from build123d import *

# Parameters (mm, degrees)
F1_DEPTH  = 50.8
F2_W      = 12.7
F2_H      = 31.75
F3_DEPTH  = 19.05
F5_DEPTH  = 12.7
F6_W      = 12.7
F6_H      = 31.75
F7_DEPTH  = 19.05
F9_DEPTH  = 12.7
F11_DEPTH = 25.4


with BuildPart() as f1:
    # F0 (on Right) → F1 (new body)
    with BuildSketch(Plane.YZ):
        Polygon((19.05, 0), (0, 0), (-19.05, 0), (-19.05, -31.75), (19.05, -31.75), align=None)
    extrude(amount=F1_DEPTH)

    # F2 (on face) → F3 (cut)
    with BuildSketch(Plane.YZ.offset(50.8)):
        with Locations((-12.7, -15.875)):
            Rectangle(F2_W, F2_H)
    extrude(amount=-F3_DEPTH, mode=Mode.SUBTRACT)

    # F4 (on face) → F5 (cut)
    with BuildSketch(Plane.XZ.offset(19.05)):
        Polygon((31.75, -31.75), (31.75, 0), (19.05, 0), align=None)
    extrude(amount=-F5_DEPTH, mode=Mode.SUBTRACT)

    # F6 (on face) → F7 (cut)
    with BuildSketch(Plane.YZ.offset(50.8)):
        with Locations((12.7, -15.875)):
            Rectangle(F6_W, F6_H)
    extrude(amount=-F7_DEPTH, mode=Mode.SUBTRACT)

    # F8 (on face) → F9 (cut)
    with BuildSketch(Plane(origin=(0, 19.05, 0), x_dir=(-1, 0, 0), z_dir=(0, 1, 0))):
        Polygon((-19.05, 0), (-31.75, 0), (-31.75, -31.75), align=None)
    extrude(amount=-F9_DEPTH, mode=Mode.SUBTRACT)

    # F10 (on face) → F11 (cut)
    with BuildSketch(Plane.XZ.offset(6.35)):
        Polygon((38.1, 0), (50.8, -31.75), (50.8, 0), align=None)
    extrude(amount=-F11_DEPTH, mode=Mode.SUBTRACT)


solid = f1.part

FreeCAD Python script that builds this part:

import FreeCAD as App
import Part
import Sketcher

V = App.Vector
Q = App.Units.Quantity


def add_polygon(sketch, points):
    """Adds a closed chain of lines whose ends are joined by coincident constraints."""
    first, n = sketch.GeometryCount, len(points)
    for a, b in zip(points, points[1:] + points[:1]):
        sketch.addGeometry(Part.LineSegment(App.Vector(*a, 0), App.Vector(*b, 0)), False)
    for i in range(n):
        sketch.addConstraint(Sketcher.Constraint("Coincident", first + i, 2, first + (i + 1) % n, 1))

doc = App.newDocument("Part")
body = doc.addObject("PartDesign::Body", "Body")

# Sketch on YZ plane
sketch1 = body.newObject("Sketcher::SketchObject", "Sketch")
sketch1.AttachmentSupport = (doc.getObject("YZ_Plane"), [""])
sketch1.MapMode = "FlatFace"
add_polygon(sketch1, [(19, 0), (-19, 0), (-19, -32), (19, -32)])  # lines 0-3
sketch1.addConstraint([
    Sketcher.Constraint("Horizontal", 0),
    Sketcher.Constraint("Vertical", 1),
    Sketcher.Constraint("Horizontal", 2),
    Sketcher.Constraint("Vertical", 3),
    Sketcher.Constraint("Symmetric", 0, 2, 3, 2, -1, 1),
    Sketcher.Constraint("DistanceX", 0, 2, 0, 1, Q("1.5 in")),
    Sketcher.Constraint("DistanceY", 1, 2, 1, 1, Q("1.25 in")),
])
pad1 = body.newObject("PartDesign::Pad", "Pad")
pad1.Profile = sketch1
pad1.Length = Q("2 in")

# Sketch on YZ plane
sketch2 = body.newObject("Sketcher::SketchObject", "Sketch001")
sketch2.AttachmentSupport = (doc.getObject("YZ_Plane"), [""])
sketch2.MapMode = "FlatFace"
sketch2.AttachmentOffset = App.Placement(V(0, 0, 2 * 25.4), App.Rotation())
add_polygon(sketch2, [(-19, 0), (-19, -32), (-6, -32), (-6, 0)])  # lines 0-3
sketch2.addConstraint([
    Sketcher.Constraint("Vertical", 0),
    Sketcher.Constraint("Horizontal", 1),
    Sketcher.Constraint("Vertical", 2),
    Sketcher.Constraint("Horizontal", 3),
    Sketcher.Constraint("PointOnObject", 2, 2, -1),
    Sketcher.Constraint("DistanceX", 1, 1, 1, 2, Q("0.5 in")),
    Sketcher.Constraint("DistanceY", 0, 2, 0, 1, Q("1.25 in")),
    Sketcher.Constraint("DistanceX", 0, 2, -1, 1, Q("0.75 in")),
])
pocket1 = body.newObject("PartDesign::Pocket", "Pocket")
pocket1.Profile = sketch2
pocket1.Length = Q("0.75 in")

# Sketch on XZ plane
sketch3 = body.newObject("Sketcher::SketchObject", "Sketch002")
sketch3.AttachmentSupport = (doc.getObject("XZ_Plane"), [""])
sketch3.MapMode = "FlatFace"
sketch3.AttachmentOffset = App.Placement(V(0, 0, 0.75 * 25.4), App.Rotation())
add_polygon(sketch3, [(32, -32), (32, 0), (19, 0)])  # lines 0-2
sketch3.addConstraint([
    Sketcher.Constraint("Vertical", 0),
    Sketcher.Constraint("Horizontal", 1),
    Sketcher.Constraint("PointOnObject", 0, 2, -1),
    Sketcher.Constraint("DistanceX", 1, 2, 1, 1, Q("0.5 in")),
    Sketcher.Constraint("DistanceY", 0, 1, 0, 2, Q("1.25 in")),
    Sketcher.Constraint("DistanceX", -1, 1, 0, 2, Q("1.25 in")),
])
pocket2 = body.newObject("PartDesign::Pocket", "Pocket001")
pocket2.Profile = sketch3
pocket2.Length = Q("0.5 in")

# Sketch on YZ plane
sketch4 = body.newObject("Sketcher::SketchObject", "Sketch003")
sketch4.AttachmentSupport = (doc.getObject("YZ_Plane"), [""])
sketch4.MapMode = "FlatFace"
sketch4.AttachmentOffset = App.Placement(V(0, 0, 2 * 25.4), App.Rotation())
add_polygon(sketch4, [(6, 0), (6, -32), (19, -32), (19, 0)])  # lines 0-3
sketch4.addConstraint([
    Sketcher.Constraint("Vertical", 0),
    Sketcher.Constraint("Horizontal", 1),
    Sketcher.Constraint("Vertical", 2),
    Sketcher.Constraint("Horizontal", 3),
    Sketcher.Constraint("PointOnObject", 2, 2, -1),
    Sketcher.Constraint("DistanceX", 1, 1, 1, 2, Q("0.5 in")),
    Sketcher.Constraint("DistanceY", 0, 2, 0, 1, Q("1.25 in")),
    Sketcher.Constraint("DistanceX", -1, 1, 0, 2, Q("0.25 in")),
])
pocket3 = body.newObject("PartDesign::Pocket", "Pocket002")
pocket3.Profile = sketch4
pocket3.Length = Q("0.75 in")

# Sketch on XZ plane
sketch5 = body.newObject("Sketcher::SketchObject", "Sketch004")
sketch5.AttachmentSupport = (doc.getObject("XZ_Plane"), [""])
sketch5.MapMode = "FlatFace"
sketch5.AttachmentOffset = App.Placement(V(0, 0, -0.75 * 25.4), App.Rotation())
add_polygon(sketch5, [(19, 0), (32, 0), (32, -32)])  # lines 0-2
sketch5.addConstraint([
    Sketcher.Constraint("Horizontal", 0),
    Sketcher.Constraint("Vertical", 1),
    Sketcher.Constraint("PointOnObject", 0, 2, -1),
    Sketcher.Constraint("DistanceX", 0, 1, 0, 2, Q("0.5 in")),
    Sketcher.Constraint("DistanceY", 1, 2, 1, 1, Q("1.25 in")),
    Sketcher.Constraint("DistanceX", -1, 1, 0, 2, Q("1.25 in")),
])
pocket4 = body.newObject("PartDesign::Pocket", "Pocket003")
pocket4.Profile = sketch5
pocket4.Length = Q("0.5 in")
pocket4.Reversed = True

# Sketch on XZ plane
sketch6 = body.newObject("Sketcher::SketchObject", "Sketch005")
sketch6.AttachmentSupport = (doc.getObject("XZ_Plane"), [""])
sketch6.MapMode = "FlatFace"
sketch6.AttachmentOffset = App.Placement(V(0, 0, 0.25 * 25.4), App.Rotation())
add_polygon(sketch6, [(38, 0), (51, -32), (51, 0)])  # lines 0-2
sketch6.addConstraint([
    Sketcher.Constraint("Vertical", 1),
    Sketcher.Constraint("Horizontal", 2),
    Sketcher.Constraint("PointOnObject", 1, 2, -1),
    Sketcher.Constraint("DistanceX", 2, 2, 2, 1, Q("0.5 in")),
    Sketcher.Constraint("DistanceX", -1, 1, 0, 2, Q("2 in")),
    Sketcher.Constraint("DistanceY", 1, 1, 1, 2, Q("1.25 in")),
])
pocket5 = body.newObject("PartDesign::Pocket", "Pocket004")
pocket5.Profile = sketch6
pocket5.Length = Q("1 in")

doc.recompute()
